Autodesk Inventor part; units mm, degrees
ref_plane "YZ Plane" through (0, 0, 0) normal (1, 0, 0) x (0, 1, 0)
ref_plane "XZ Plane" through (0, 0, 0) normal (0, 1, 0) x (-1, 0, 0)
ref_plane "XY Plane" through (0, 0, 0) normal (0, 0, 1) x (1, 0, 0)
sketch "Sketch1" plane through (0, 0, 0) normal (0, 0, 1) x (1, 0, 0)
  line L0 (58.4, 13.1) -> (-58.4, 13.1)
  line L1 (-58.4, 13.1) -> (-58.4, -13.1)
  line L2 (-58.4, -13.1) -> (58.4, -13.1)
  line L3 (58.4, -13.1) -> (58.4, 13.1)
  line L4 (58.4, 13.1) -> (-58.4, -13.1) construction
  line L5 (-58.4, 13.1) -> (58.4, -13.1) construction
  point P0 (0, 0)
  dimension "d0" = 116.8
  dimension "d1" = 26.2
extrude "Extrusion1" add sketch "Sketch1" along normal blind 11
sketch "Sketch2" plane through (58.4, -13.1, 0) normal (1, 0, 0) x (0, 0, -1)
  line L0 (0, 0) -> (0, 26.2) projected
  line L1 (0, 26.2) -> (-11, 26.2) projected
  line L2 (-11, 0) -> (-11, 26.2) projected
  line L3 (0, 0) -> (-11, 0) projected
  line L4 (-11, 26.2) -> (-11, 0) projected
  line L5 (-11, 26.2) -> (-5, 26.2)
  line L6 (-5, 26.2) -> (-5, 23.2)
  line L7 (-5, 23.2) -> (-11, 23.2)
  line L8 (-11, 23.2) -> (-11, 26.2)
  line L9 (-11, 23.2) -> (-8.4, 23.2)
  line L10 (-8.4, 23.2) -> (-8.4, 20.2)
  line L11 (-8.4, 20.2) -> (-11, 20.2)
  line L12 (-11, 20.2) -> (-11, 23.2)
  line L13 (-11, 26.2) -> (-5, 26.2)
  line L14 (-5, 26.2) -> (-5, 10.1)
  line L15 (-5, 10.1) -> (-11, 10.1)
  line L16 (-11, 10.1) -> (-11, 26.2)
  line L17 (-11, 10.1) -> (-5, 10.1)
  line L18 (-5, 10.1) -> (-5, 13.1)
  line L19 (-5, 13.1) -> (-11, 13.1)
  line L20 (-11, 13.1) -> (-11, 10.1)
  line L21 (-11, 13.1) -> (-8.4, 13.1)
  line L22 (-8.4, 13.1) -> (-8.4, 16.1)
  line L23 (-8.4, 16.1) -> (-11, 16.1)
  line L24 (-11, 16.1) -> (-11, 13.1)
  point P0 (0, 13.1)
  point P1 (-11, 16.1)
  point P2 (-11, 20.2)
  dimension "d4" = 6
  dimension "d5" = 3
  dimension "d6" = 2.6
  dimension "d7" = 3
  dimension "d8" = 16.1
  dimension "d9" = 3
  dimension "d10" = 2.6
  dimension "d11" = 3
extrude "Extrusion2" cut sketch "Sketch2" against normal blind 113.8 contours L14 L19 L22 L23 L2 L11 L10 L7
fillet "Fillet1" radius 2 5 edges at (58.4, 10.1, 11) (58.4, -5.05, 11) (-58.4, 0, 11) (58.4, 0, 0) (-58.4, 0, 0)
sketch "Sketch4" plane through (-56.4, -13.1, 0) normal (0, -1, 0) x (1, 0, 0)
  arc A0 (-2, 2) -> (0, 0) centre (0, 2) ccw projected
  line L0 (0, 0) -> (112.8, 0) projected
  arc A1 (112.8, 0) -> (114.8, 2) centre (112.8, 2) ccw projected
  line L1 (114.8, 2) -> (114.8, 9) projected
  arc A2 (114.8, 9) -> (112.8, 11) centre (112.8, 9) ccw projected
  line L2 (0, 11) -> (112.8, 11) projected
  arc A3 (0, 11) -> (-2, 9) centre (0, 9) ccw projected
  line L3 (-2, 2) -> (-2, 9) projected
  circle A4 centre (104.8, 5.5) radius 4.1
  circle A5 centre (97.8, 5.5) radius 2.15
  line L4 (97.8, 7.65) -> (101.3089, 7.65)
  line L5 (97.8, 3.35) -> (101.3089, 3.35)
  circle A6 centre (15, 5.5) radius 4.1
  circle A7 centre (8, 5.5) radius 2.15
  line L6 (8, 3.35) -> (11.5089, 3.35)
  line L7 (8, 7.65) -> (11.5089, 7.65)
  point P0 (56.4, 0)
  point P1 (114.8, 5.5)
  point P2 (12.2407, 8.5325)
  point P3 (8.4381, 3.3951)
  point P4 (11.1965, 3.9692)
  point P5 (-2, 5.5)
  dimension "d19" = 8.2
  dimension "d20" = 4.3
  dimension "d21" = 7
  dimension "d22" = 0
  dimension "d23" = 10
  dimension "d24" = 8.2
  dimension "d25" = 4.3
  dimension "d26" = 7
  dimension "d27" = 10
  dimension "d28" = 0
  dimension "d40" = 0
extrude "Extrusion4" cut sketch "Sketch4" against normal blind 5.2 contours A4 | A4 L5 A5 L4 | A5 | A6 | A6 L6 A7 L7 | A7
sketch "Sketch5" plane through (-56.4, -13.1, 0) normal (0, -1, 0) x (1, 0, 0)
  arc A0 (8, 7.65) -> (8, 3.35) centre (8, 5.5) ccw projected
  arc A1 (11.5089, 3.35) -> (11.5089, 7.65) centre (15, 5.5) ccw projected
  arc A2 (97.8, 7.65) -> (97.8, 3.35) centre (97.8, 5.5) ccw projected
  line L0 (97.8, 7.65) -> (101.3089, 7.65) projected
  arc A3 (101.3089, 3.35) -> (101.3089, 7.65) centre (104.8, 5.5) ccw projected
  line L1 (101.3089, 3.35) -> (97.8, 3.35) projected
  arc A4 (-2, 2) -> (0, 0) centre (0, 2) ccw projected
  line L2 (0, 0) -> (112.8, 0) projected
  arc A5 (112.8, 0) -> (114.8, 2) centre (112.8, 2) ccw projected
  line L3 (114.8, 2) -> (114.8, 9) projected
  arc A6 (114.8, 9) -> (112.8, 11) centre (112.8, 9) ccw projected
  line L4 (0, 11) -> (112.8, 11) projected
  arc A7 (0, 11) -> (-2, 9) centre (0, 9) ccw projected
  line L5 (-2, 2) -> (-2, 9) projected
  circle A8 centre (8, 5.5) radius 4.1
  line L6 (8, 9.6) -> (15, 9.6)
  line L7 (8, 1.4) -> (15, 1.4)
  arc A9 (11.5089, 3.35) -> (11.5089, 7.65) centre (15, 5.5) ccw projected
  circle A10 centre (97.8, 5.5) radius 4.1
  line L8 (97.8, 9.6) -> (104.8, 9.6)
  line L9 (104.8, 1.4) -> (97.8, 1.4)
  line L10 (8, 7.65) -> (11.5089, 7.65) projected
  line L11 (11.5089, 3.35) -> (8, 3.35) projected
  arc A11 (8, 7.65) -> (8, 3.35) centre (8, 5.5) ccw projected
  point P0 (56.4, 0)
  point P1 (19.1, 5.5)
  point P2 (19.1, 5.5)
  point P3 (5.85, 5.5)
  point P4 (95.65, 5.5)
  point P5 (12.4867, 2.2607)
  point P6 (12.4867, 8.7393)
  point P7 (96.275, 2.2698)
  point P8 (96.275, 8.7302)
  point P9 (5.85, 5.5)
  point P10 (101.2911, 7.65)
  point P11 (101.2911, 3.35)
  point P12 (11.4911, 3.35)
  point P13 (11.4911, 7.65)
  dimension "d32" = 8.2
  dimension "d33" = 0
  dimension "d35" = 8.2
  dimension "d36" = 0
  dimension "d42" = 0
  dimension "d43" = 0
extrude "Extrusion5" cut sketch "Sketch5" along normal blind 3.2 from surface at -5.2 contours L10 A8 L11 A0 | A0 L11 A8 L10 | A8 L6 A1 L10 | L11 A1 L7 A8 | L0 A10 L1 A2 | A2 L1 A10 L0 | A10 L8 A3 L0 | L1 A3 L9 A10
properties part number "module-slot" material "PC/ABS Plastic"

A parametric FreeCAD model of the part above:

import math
import FreeCAD as App
import Part
import Sketcher

V = App.Vector
Q = App.Units.Quantity


def edges_at(feature, points):
    """Names of the edges that pass closest to the given points."""
    edges = feature.Shape.Edges
    near = lambda p: min(range(len(edges)), key=lambda i: edges[i].distToShape(Part.Vertex(*p))[0])
    return sorted({f"Edge{near(p) + 1}" for p in points})


def add_polygon(sketch, points):
    """Adds a closed chain of lines whose ends are joined by coincident constraints."""
    first, n = sketch.GeometryCount, len(points)
    for a, b in zip(points, points[1:] + points[:1]):
        sketch.addGeometry(Part.LineSegment(App.Vector(*a, 0), App.Vector(*b, 0)), False)
    for i in range(n):
        sketch.addConstraint(Sketcher.Constraint("Coincident", first + i, 2, first + (i + 1) % n, 1))

doc = App.newDocument("Part")
body = doc.addObject("PartDesign::Body", "Body")

sketch1 = doc.addObject("Sketcher::SketchObject", "Sketch")
body.addObject(sketch1)
sketch1.AttachmentSupport = (doc.XY_Plane, [""])
sketch1.MapMode = "FlatFace"
add_polygon(sketch1, [(58.4, -13.1), (58.4, 13.1), (-58.4, 13.1), (-58.4, -13.1)])
sketch1.addConstraint([
    Sketcher.Constraint("Vertical", 0),
    Sketcher.Constraint("Horizontal", 1),
    Sketcher.Constraint("Vertical", 2),
    Sketcher.Constraint("Horizontal", 3),
    Sketcher.Constraint("Symmetric", 0, 2, 2, 2, -1, 1),
    Sketcher.Constraint("DistanceX", 1, 2, 1, 1, Q("116.8 mm")),
    Sketcher.Constraint("DistanceY", 0, 1, 0, 2, Q("26.2 mm")),
])
pad1 = doc.addObject("PartDesign::Pad", "Pad")
body.addObject(pad1)
pad1.Profile = sketch1
pad1.Length = 11

sketch2 = doc.addObject("Sketcher::SketchObject", "Sketch001")
body.addObject(sketch2)
sketch2.AttachmentSupport = (doc.YZ_Plane, [""])
sketch2.MapMode = "FlatFace"
sketch2.AttachmentOffset = App.Placement(V(0, 0, 58.4), App.Rotation())
add_polygon(sketch2, [(0, 5), (10.1, 5), (10.1, 8.4), (7.1, 8.4), (7.1, 11), (3, 11), (3, 8.4), (0, 8.4)])
sketch2.addConstraint([
    Sketcher.Constraint("Horizontal", 0),
    Sketcher.Constraint("Vertical", 1),
    Sketcher.Constraint("Horizontal", 2),
    Sketcher.Constraint("Vertical", 3),
    Sketcher.Constraint("Horizontal", 4),
    Sketcher.Constraint("Vertical", 5),
    Sketcher.Constraint("Horizontal", 6),
    Sketcher.Constraint("Vertical", 7),
    Sketcher.Constraint("PointOnObject", 6, 2, -2),
    Sketcher.Constraint("Horizontal", 2, 2, 5, 2),
    Sketcher.Constraint("Equal", 2, 6),
    Sketcher.Constraint("DistanceX", 2, 2, 2, 1, Q("3 mm")),
    Sketcher.Constraint("DistanceY", 3, 1, 3, 2, Q("2.6 mm")),
    Sketcher.Constraint("DistanceY", 0, 2, 3, 2, Q("6 mm")),
    Sketcher.Constraint("DistanceX", 0, 1, 0, 2, Q("10.1 mm")),
    Sketcher.Constraint("DistanceY", -1, 1, 0, 2, Q("5 mm")),
])
pocket1 = doc.addObject("PartDesign::Pocket", "Pocket")
body.addObject(pocket1)
pocket1.Profile = sketch2
pocket1.Length = 113.8
doc.recompute()

fillet = doc.addObject("PartDesign::Fillet", "Fillet")
body.addObject(fillet)
fillet.Base = (pocket1, edges_at(pocket1, [
    (58.4, 10.1, 11),
    (58.4, -5.05, 11),
    (-58.4, 0, 11),
    (58.4, 0, 0),
    (-58.4, 0, 0),
]))
fillet.Radius = 2

sketch3 = doc.addObject("Sketcher::SketchObject", "Sketch002")
body.addObject(sketch3)
sketch3.AttachmentSupport = (doc.XZ_Plane, [""])
sketch3.MapMode = "FlatFace"
sketch3.AttachmentOffset = App.Placement(V(0, 0, 13.1), App.Rotation())
sketch3.addGeometry([
    Part.ArcOfCircle(Part.Circle(V(48.4, 5.5, 0), V(0, 0, 1), 4.1), math.radians(-148.373089), math.radians(148.373089)),
    Part.LineSegment(V(44.9089, 7.65, 0), V(41.4, 7.65, 0)),
    Part.ArcOfCircle(Part.Circle(V(41.4, 5.5, 0), V(0, 0, 1), 2.15), math.radians(90), math.radians(270)),
    Part.LineSegment(V(41.4, 3.35, 0), V(44.9089, 3.35, 0)),
    Part.ArcOfCircle(Part.Circle(V(-41.4, 5.5, 0), V(0, 0, 1), 4.1), math.radians(-148.373089), math.radians(148.373089)),
    Part.LineSegment(V(-44.8911, 7.65, 0), V(-48.4, 7.65, 0)),
    Part.ArcOfCircle(Part.Circle(V(-48.4, 5.5, 0), V(0, 0, 1), 2.15), math.radians(90), math.radians(270)),
    Part.LineSegment(V(-48.4, 3.35, 0), V(-44.8911, 3.35, 0)),
], False)
sketch3.addConstraint([
    Sketcher.Constraint("Coincident", 0, 2, 1, 1),
    Sketcher.Constraint("Tangent", 1, 2, 2, 1),
    Sketcher.Constraint("Tangent", 2, 2, 3, 1),
    Sketcher.Constraint("Coincident", 3, 2, 0, 1),
    Sketcher.Constraint("Coincident", 4, 2, 5, 1),
    Sketcher.Constraint("Tangent", 5, 2, 6, 1),
    Sketcher.Constraint("Tangent", 6, 2, 7, 1),
    Sketcher.Constraint("Coincident", 7, 2, 4, 1),
    Sketcher.Constraint("Horizontal", 1),
    Sketcher.Constraint("Horizontal", 3),
    Sketcher.Constraint("Horizontal", 5),
    Sketcher.Constraint("Horizontal", 7),
    Sketcher.Constraint("Equal", 0, 4),
    Sketcher.Constraint("Equal", 2, 6),
    Sketcher.Constraint("Symmetric", 2, 3, 4, 3, -2),
    Sketcher.Constraint("Symmetric", 0, 3, 6, 3, -2),
    Sketcher.Constraint("Horizontal", 0, 3, 2, 3),
    Sketcher.Constraint("Radius", 0, Q("4.1 mm")),
    Sketcher.Constraint("Radius", 2, Q("2.15 mm")),
    Sketcher.Constraint("DistanceX", 2, 3, 0, 3, Q("7 mm")),
    Sketcher.Constraint("DistanceX", -1, 1, 0, 3, Q("48.4 mm")),
    Sketcher.Constraint("DistanceY", -1, 1, 0, 3, Q("5.5 mm")),
])
pocket2 = doc.addObject("PartDesign::Pocket", "Pocket001")
body.addObject(pocket2)
pocket2.Profile = sketch3
pocket2.Length = 5.2

sketch4 = doc.addObject("Sketcher::SketchObject", "Sketch003")
body.addObject(sketch4)
sketch4.AttachmentSupport = (doc.XZ_Plane, [""])
sketch4.MapMode = "FlatFace"
sketch4.AttachmentOffset = App.Placement(V(0, 0, 7.9), App.Rotation())
sketch4.addGeometry([
    Part.LineSegment(V(-44.90894, 7.65, 0), V(-44.8911, 7.65, 0)),
    Part.ArcOfCircle(Part.Circle(V(-41.4, 5.5, 0), V(0, 0, 1), 4.100034), math.radians(90), math.radians(148.373089)),
    Part.LineSegment(V(-41.4, 9.6, 0), V(-48.4, 9.6, 0)),
    Part.ArcOfCircle(Part.Circle(V(-48.4, 5.5, 0), V(0, 0, 1), 4.1), math.radians(90), math.radians(270)),
    Part.LineSegment(V(-48.4, 1.4, 0), V(-41.4, 1.4, 0)),
    Part.ArcOfCircle(Part.Circle(V(-41.4, 5.5, 0), V(0, 0, 1), 4.100034), math.radians(-148.373089), math.radians(-90)),
    Part.LineSegment(V(-44.8911, 3.35, 0), V(-44.90894, 3.35, 0)),
    Part.ArcOfCircle(Part.Circle(V(-48.4, 5.5, 0), V(0, 0, 1), 4.1), math.radians(-31.627204), math.radians(31.627204)),
    Part.LineSegment(V(44.89106, 7.65, 0), V(44.9089, 7.65, 0)),
    Part.ArcOfCircle(Part.Circle(V(48.4, 5.5, 0), V(0, 0, 1), 4.100034), math.radians(90), math.radians(148.373089)),
    Part.LineSegment(V(48.4, 9.6, 0), V(41.4, 9.6, 0)),
    Part.ArcOfCircle(Part.Circle(V(41.4, 5.5, 0), V(0, 0, 1), 4.1), math.radians(90), math.radians(270)),
    Part.LineSegment(V(41.4, 1.4, 0), V(48.4, 1.4, 0)),
    Part.ArcOfCircle(Part.Circle(V(48.4, 5.5, 0), V(0, 0, 1), 4.100034), math.radians(-148.373089), math.radians(-90)),
    Part.LineSegment(V(44.9089, 3.35, 0), V(44.89106, 3.35, 0)),
    Part.ArcOfCircle(Part.Circle(V(41.4, 5.5, 0), V(0, 0, 1), 4.1), math.radians(-31.627204), math.radians(31.627204)),
], False)
sketch4.addConstraint([
    Sketcher.Constraint("Coincident", 0, 2, 1, 2),
    Sketcher.Constraint("Tangent", 1, 1, 2, 1),
    Sketcher.Constraint("Tangent", 2, 2, 3, 1),
    Sketcher.Constraint("Tangent", 3, 2, 4, 1),
    Sketcher.Constraint("Tangent", 4, 2, 5, 2),
    Sketcher.Constraint("Coincident", 5, 1, 6, 1),
    Sketcher.Constraint("Coincident", 6, 2, 7, 1),
    Sketcher.Constraint("Coincident", 7, 2, 0, 1),
    Sketcher.Constraint("Coincident", 8, 2, 9, 2),
    Sketcher.Constraint("Tangent", 9, 1, 10, 1),
    Sketcher.Constraint("Tangent", 10, 2, 11, 1),
    Sketcher.Constraint("Tangent", 11, 2, 12, 1),
    Sketcher.Constraint("Tangent", 12, 2, 13, 2),
    Sketcher.Constraint("Coincident", 13, 1, 14, 1),
    Sketcher.Constraint("Coincident", 14, 2, 15, 1),
    Sketcher.Constraint("Coincident", 15, 2, 8, 1),
    Sketcher.Constraint("Horizontal", 0),
    Sketcher.Constraint("Horizontal", 2),
    Sketcher.Constraint("Horizontal", 4),
    Sketcher.Constraint("Horizontal", 6),
    Sketcher.Constraint("Horizontal", 8),
    Sketcher.Constraint("Horizontal", 10),
    Sketcher.Constraint("Horizontal", 12),
    Sketcher.Constraint("Horizontal", 14),
    Sketcher.Constraint("Coincident", 5, 3, 1, 3),
    Sketcher.Constraint("Coincident", 7, 3, 3, 3),
    Sketcher.Constraint("Coincident", 13, 3, 9, 3),
    Sketcher.Constraint("Coincident", 15, 3, 11, 3),
    Sketcher.Constraint("Equal", 1, 3),
    Sketcher.Constraint("Equal", 5, 7),
    Sketcher.Constraint("Equal", 7, 9),
    Sketcher.Constraint("Equal", 9, 11),
    Sketcher.Constraint("Equal", 13, 15),
    Sketcher.Constraint("Symmetric", 3, 3, 9, 3, -2),
    Sketcher.Constraint("Symmetric", 5, 1, 14, 2, -2),
    Sketcher.Constraint("Horizontal", 7, 2, 8, 2),
    Sketcher.Constraint("Vertical", 0, 2, 5, 1),
    Sketcher.Constraint("Radius", 1, Q("4.1 mm")),
    Sketcher.Constraint("DistanceX", 2, 2, 2, 1, Q("7 mm")),
    Sketcher.Constraint("DistanceX", 1, 3, -1, 1, Q("41.4 mm")),
    Sketcher.Constraint("DistanceY", -1, 1, 1, 3, Q("5.5 mm")),
    Sketcher.Constraint("DistanceY", -1, 1, 0, 2, Q("7.65 mm")),
])
pocket3 = doc.addObject("PartDesign::Pocket", "Pocket002")
body.addObject(pocket3)
pocket3.Profile = sketch4
pocket3.Length = 3.2
pocket3.Reversed = True

doc.recompute()
